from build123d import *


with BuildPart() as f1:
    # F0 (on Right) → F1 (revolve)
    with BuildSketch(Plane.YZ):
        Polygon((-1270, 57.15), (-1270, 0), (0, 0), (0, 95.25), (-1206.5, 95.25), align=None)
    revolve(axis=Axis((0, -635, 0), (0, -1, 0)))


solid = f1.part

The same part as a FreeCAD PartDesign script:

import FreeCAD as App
import Part
import Sketcher
from FreeCAD import Vector
Q = App.Units.Quantity


def add_polygon(sketch, points):
    """Adds a closed chain of lines whose ends are joined by coincident constraints."""
    first, n = sketch.GeometryCount, len(points)
    for a, b in zip(points, points[1:] + points[:1]):
        sketch.addGeometry(Part.LineSegment(App.Vector(*a, 0), App.Vector(*b, 0)), False)
    for i in range(n):
        sketch.addConstraint(Sketcher.Constraint("Coincident", first + i, 2, first + (i + 1) % n, 1))

doc = App.newDocument("Part")
body = doc.addObject("PartDesign::Body", "Body")

# Sketch on YZ plane
sketch1 = body.newObject("Sketcher::SketchObject", "Sketch")
sketch1.AttachmentSupport = (doc.getObject("YZ_Plane"), [""])
sketch1.MapMode = "FlatFace"
add_polygon(sketch1, [(-1270, 57), (-1270, 0), (0, 0), (0, 95), (-1206, 95)])  # lines 0-4
sketch1.addConstraint([
    Sketcher.Constraint("Vertical", 0),
    Sketcher.Constraint("Horizontal", 1),
    Sketcher.Constraint("Vertical", 2),
    Sketcher.Constraint("Horizontal", 3),
    Sketcher.Constraint("Coincident", 1, 2, -1, 1),
    Sketcher.Constraint("DistanceX", 1, 1, 1, 2, Q("50 in")),
    Sketcher.Constraint("DistanceX", 3, 2, 3, 1, Q("47.5 in")),
    Sketcher.Constraint("DistanceY", 0, 2, 0, 1, Q("2.25 in")),
    Sketcher.Constraint("DistanceY", 2, 1, 2, 2, Q("3.75 in")),
])
revolution = body.newObject("PartDesign::Revolution", "Revolution")
revolution.Profile = sketch1
revolution.ReferenceAxis = (sketch1, ["H_Axis"])
revolution.Angle = 360

doc.recompute()
